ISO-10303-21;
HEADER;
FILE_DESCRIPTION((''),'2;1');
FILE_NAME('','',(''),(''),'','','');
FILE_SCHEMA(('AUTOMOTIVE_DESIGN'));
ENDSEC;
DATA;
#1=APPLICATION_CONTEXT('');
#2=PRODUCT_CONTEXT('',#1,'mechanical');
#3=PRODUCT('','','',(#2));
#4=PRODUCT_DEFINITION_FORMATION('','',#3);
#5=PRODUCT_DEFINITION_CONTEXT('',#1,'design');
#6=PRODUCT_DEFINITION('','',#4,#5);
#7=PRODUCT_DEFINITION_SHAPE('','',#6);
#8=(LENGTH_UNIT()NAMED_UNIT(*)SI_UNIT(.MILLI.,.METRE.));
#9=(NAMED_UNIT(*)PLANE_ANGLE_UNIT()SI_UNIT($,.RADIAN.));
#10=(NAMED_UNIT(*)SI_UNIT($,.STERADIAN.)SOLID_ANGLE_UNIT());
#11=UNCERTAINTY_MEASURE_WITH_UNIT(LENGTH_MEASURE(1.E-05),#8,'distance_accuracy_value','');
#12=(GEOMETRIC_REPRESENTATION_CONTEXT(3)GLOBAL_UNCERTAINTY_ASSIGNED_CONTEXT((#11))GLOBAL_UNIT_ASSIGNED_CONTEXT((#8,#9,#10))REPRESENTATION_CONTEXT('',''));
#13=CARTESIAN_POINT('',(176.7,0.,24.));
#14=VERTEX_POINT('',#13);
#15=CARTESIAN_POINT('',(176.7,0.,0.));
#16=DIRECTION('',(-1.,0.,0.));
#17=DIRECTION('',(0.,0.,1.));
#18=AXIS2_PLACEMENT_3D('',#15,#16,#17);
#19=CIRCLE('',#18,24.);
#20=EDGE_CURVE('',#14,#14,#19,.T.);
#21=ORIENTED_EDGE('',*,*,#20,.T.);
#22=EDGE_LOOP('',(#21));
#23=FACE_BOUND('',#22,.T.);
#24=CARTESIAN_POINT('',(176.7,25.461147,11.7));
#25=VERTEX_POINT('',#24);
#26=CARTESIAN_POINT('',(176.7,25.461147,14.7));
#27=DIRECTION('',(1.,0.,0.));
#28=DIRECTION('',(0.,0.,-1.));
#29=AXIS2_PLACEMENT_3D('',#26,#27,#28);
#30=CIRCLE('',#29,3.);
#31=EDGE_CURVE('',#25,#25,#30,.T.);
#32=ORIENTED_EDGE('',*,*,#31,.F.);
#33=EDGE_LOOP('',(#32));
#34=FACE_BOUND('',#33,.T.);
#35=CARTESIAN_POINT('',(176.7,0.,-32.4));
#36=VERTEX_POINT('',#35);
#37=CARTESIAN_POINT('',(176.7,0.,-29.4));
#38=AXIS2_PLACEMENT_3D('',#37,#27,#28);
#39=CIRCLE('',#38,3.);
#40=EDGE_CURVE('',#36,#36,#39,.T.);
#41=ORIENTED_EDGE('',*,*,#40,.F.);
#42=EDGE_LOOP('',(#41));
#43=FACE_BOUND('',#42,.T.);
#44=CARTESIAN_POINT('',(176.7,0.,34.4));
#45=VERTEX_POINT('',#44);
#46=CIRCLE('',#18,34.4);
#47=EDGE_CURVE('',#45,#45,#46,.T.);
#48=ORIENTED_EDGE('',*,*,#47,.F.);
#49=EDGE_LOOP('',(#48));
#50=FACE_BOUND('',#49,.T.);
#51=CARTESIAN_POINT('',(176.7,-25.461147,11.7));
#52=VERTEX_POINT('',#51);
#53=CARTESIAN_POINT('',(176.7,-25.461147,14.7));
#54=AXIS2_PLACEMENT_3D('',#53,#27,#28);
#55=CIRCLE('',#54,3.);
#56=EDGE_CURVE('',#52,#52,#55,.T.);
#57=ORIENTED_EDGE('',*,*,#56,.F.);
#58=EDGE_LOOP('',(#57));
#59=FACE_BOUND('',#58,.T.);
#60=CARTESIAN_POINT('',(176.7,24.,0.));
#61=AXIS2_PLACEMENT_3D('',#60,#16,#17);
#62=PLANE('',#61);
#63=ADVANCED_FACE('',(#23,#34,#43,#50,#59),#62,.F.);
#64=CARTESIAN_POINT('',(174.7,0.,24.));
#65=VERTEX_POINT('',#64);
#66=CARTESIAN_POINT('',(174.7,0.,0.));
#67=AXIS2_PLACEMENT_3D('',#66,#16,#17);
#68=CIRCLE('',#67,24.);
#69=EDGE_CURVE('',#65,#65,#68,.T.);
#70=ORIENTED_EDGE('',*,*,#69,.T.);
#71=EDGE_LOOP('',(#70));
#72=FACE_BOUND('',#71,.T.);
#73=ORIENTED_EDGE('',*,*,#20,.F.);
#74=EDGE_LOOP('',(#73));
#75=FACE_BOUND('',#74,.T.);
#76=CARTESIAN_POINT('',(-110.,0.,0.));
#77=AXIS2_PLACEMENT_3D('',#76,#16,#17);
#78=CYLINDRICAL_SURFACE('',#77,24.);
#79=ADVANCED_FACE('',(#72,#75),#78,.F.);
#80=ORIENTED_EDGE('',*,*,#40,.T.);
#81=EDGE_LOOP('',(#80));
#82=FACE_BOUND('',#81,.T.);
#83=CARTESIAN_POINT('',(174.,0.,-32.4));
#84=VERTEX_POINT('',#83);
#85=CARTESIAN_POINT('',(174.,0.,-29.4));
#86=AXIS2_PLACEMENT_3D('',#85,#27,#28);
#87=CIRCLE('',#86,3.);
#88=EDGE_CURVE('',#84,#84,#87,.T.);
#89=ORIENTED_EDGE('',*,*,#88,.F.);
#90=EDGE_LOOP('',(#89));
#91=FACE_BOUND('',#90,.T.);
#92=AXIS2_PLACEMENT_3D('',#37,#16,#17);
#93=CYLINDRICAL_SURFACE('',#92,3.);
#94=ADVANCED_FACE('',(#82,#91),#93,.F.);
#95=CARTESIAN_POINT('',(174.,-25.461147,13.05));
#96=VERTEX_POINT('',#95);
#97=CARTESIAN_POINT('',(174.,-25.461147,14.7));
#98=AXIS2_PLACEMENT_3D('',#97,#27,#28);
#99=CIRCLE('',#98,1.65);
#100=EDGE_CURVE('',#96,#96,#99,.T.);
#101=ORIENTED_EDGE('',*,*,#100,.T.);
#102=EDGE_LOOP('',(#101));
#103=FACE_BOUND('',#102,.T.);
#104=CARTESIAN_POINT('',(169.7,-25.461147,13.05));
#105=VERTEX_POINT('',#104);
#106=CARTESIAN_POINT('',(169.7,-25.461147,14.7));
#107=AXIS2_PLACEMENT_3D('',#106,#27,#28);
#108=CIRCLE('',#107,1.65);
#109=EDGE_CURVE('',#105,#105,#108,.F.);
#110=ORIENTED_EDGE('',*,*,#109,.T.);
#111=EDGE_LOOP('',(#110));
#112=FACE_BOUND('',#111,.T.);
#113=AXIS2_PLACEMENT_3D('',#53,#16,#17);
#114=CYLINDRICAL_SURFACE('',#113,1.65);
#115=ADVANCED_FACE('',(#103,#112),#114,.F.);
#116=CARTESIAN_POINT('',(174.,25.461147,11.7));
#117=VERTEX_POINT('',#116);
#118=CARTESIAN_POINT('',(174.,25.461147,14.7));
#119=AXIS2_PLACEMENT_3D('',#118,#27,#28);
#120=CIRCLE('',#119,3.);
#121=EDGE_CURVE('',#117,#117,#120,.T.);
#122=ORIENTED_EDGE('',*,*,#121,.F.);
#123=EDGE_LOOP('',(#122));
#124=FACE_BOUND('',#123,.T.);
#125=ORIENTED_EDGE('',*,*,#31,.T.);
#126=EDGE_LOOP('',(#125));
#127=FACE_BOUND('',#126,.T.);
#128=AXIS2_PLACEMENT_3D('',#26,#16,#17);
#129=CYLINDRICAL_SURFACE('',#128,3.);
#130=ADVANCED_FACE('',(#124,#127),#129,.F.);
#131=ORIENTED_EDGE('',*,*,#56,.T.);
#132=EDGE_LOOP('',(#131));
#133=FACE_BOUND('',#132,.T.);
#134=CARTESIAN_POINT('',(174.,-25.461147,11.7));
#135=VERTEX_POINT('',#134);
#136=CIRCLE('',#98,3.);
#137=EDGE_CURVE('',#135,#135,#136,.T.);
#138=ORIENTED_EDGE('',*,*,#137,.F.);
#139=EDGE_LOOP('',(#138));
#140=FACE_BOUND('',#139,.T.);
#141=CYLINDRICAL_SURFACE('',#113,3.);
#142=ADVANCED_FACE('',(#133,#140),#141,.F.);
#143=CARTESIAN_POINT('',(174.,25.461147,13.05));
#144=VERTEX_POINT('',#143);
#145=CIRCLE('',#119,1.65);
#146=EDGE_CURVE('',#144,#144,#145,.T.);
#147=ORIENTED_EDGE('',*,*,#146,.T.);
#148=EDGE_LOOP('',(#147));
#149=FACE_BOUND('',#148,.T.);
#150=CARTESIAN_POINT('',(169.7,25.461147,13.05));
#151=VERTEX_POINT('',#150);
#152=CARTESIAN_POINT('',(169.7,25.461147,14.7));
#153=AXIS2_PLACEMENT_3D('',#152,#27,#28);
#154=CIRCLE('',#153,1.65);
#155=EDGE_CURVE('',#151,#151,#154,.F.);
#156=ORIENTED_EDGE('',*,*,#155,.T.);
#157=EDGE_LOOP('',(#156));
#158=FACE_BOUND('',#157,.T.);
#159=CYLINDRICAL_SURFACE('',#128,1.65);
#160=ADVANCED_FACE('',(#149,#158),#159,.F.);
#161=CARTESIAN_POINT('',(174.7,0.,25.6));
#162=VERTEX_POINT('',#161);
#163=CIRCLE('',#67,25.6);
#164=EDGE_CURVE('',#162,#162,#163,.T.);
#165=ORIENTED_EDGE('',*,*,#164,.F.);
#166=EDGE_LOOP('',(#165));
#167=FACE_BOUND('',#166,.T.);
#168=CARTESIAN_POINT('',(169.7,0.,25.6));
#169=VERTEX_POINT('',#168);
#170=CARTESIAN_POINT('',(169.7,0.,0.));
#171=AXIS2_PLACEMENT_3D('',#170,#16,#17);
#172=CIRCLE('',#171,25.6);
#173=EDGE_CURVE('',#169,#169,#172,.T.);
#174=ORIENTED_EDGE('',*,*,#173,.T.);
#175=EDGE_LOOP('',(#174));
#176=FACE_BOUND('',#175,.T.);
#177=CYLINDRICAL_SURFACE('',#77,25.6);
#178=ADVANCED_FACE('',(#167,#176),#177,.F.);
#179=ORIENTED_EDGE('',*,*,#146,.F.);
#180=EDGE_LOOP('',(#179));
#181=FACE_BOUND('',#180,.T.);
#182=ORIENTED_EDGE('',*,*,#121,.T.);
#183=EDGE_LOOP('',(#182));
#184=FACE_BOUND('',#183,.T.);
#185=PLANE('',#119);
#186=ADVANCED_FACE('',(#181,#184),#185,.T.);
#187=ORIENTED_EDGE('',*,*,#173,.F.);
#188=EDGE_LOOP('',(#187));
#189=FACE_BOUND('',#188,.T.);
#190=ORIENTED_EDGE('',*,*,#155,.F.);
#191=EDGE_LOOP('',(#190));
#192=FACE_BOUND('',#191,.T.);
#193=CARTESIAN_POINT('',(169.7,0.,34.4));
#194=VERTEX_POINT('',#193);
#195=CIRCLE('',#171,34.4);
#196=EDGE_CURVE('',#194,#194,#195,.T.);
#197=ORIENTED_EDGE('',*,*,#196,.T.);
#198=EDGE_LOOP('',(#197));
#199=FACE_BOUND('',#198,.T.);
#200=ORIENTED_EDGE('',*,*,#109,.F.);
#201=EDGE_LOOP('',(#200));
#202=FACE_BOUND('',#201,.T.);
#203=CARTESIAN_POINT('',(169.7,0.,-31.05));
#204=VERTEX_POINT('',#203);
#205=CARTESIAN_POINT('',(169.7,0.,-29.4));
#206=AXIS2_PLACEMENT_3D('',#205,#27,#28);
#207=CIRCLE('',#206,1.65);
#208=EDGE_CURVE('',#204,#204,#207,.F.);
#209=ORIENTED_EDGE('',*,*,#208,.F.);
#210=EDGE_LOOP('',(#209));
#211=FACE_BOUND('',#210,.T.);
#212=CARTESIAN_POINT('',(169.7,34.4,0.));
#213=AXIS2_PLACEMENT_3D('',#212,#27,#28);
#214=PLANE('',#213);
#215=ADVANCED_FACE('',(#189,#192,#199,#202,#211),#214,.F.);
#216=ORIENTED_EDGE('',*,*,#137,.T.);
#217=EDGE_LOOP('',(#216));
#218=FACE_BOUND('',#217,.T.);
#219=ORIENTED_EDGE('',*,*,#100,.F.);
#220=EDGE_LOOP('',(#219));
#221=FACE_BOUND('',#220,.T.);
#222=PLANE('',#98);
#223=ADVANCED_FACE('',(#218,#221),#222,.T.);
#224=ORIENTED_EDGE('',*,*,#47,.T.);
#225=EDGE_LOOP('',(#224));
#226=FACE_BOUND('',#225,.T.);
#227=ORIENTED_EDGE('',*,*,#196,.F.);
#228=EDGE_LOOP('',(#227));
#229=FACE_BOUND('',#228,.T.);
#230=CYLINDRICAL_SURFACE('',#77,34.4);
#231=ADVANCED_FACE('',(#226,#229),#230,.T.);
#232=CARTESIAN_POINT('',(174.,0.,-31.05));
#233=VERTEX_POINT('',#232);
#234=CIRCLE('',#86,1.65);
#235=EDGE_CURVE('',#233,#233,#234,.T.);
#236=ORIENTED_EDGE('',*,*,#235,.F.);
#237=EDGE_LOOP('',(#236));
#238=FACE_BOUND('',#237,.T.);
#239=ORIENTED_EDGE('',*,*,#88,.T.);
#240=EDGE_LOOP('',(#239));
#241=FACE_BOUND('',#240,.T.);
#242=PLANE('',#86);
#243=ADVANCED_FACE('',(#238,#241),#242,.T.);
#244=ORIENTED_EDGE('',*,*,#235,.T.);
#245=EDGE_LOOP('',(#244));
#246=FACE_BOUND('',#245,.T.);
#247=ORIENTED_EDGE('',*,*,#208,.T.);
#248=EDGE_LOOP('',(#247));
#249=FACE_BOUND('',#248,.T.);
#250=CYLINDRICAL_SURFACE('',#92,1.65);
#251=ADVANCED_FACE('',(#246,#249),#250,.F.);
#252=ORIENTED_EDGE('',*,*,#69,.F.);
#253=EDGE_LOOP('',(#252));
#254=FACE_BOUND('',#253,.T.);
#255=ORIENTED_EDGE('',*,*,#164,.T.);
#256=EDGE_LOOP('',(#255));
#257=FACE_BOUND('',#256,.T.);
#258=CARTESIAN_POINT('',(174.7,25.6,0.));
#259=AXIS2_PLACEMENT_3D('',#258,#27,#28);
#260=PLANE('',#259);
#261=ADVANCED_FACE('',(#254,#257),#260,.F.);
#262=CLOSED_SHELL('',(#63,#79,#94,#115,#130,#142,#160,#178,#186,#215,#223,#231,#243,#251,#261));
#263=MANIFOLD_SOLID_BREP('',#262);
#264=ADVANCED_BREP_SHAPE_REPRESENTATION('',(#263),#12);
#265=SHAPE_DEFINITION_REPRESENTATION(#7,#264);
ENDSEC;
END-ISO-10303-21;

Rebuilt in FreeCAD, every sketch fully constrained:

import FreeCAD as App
import Part
import Sketcher


def add_polygon(sketch, points):
    """Adds a closed chain of lines whose ends are joined by coincident constraints."""
    first, n = sketch.GeometryCount, len(points)
    for a, b in zip(points, points[1:] + points[:1]):
        sketch.addGeometry(Part.LineSegment(App.Vector(*a, 0), App.Vector(*b, 0)), False)
    for i in range(n):
        sketch.addConstraint(Sketcher.Constraint("Coincident", first + i, 2, first + (i + 1) % n, 1))

doc = App.newDocument("Part")
params = doc.addObject("Spreadsheet::Sheet", "Params")
for row, (alias, value) in enumerate([
    ("sketch1_width", "5 mm"),
    ("sketch1_width2", "2 mm"),
    ("sketch1_height", "1.6 mm"),
    ("sketch1_height2", "10.4 mm"),
    ("revolution_angle", "360 deg"),
    ("sketch2_diameter", "3.3 mm"),
    ("sketch3_diameter", "6 mm"),
    ("pocket2_length", "2.7 mm"),
], start=1):
    params.set(f"A{row}", alias)
    params.set(f"B{row}", "=" + value)
    params.setAlias(f"B{row}", alias)

body = doc.addObject("PartDesign::Body", "Body")

sketch1 = doc.addObject("Sketcher::SketchObject", "Sketch")
body.addObject(sketch1)
sketch1.AttachmentSupport = (doc.XY_Plane, [""])
sketch1.MapMode = "FlatFace"
add_polygon(sketch1, [(169.7, 25.6), (174.7, 25.6), (174.7, 24), (176.7, 24), (176.7, 34.4), (169.7, 34.4)])
sketch1.addConstraint([
    Sketcher.Constraint("Horizontal", 0),
    Sketcher.Constraint("Vertical", 1),
    Sketcher.Constraint("Horizontal", 2),
    Sketcher.Constraint("Vertical", 3),
    Sketcher.Constraint("Horizontal", 4),
    Sketcher.Constraint("Vertical", 5),
    Sketcher.Constraint("DistanceX", 0, 1, 0, 2, 5.0),
    Sketcher.Constraint("DistanceX", 2, 1, 2, 2, 2.0),
    Sketcher.Constraint("DistanceY", 1, 2, 1, 1, 1.6),
    Sketcher.Constraint("DistanceY", 3, 1, 3, 2, 10.4),
    Sketcher.Constraint("DistanceY", -1, 1, 1, 2, 24.0),
    Sketcher.Constraint("DistanceX", -1, 1, 0, 2, 174.7),
])
sketch1.setExpression("Constraints[12]", "Params.sketch1_width")
sketch1.setExpression("Constraints[13]", "Params.sketch1_width2")
sketch1.setExpression("Constraints[14]", "Params.sketch1_height")
sketch1.setExpression("Constraints[15]", "Params.sketch1_height2")
revolution = doc.addObject("PartDesign::Revolution", "Revolution")
body.addObject(revolution)
revolution.Profile = sketch1
revolution.ReferenceAxis = (sketch1, ["H_Axis"])
revolution.setExpression("Angle", "Params.revolution_angle")

sketch2 = doc.addObject("Sketcher::SketchObject", "Sketch001")
body.addObject(sketch2)
sketch2.AttachmentSupport = (doc.YZ_Plane, [""])
sketch2.MapMode = "FlatFace"
sketch2.addGeometry([
    Part.Circle(App.Vector(0, -29.4, 0), App.Vector(0, 0, 1), 1.6),
    Part.Circle(App.Vector(25.5, 14.7, 0), App.Vector(0, 0, 1), 1.6),
    Part.Circle(App.Vector(-25.5, 14.7, 0), App.Vector(0, 0, 1), 1.6),
], False)
sketch2.addConstraint([
    Sketcher.Constraint("Equal", 0, 1),
    Sketcher.Constraint("Equal", 1, 2),
    Sketcher.Constraint("Symmetric", 1, 3, 2, 3, -2),
    Sketcher.Constraint("PointOnObject", 0, 3, -2),
    Sketcher.Constraint("Diameter", 0, 3.3),
    Sketcher.Constraint("DistanceY", 0, 3, -1, 1, 29.4),
    Sketcher.Constraint("DistanceY", -1, 1, 1, 3, 14.7),
    Sketcher.Constraint("DistanceX", -1, 1, 1, 3, 25.461147),
])
sketch2.setExpression("Constraints[4]", "Params.sketch2_diameter")
pocket1 = doc.addObject("PartDesign::Pocket", "Pocket")
body.addObject(pocket1)
pocket1.Profile = sketch2
pocket1.Type = "ThroughAll"
pocket1.Midplane = True

sketch3 = doc.addObject("Sketcher::SketchObject", "Sketch002")
body.addObject(sketch3)
sketch3.AttachmentSupport = (doc.YZ_Plane, [""])
sketch3.MapMode = "FlatFace"
sketch3.AttachmentOffset = App.Placement(App.Vector(0, 0, 174), App.Rotation())
sketch3.addGeometry([
    Part.Circle(App.Vector(0, -29.4, 0), App.Vector(0, 0, 1), 3),
    Part.Circle(App.Vector(25.5, 14.7, 0), App.Vector(0, 0, 1), 3),
    Part.Circle(App.Vector(-25.5, 14.7, 0), App.Vector(0, 0, 1), 3),
], False)
sketch3.addConstraint([
    Sketcher.Constraint("Equal", 0, 1),
    Sketcher.Constraint("Equal", 1, 2),
    Sketcher.Constraint("Symmetric", 1, 3, 2, 3, -2),
    Sketcher.Constraint("PointOnObject", 0, 3, -2),
    Sketcher.Constraint("Diameter", 0, 6.0),
    Sketcher.Constraint("DistanceY", 0, 3, -1, 1, 29.4),
    Sketcher.Constraint("DistanceY", -1, 1, 1, 3, 14.7),
    Sketcher.Constraint("DistanceX", -1, 1, 1, 3, 25.461147),
])
sketch3.setExpression("Constraints[4]", "Params.sketch3_diameter")
pocket2 = doc.addObject("PartDesign::Pocket", "Pocket001")
body.addObject(pocket2)
pocket2.Profile = sketch3
pocket2.setExpression("Length", "Params.pocket2_length")
pocket2.Reversed = True

doc.recompute()
